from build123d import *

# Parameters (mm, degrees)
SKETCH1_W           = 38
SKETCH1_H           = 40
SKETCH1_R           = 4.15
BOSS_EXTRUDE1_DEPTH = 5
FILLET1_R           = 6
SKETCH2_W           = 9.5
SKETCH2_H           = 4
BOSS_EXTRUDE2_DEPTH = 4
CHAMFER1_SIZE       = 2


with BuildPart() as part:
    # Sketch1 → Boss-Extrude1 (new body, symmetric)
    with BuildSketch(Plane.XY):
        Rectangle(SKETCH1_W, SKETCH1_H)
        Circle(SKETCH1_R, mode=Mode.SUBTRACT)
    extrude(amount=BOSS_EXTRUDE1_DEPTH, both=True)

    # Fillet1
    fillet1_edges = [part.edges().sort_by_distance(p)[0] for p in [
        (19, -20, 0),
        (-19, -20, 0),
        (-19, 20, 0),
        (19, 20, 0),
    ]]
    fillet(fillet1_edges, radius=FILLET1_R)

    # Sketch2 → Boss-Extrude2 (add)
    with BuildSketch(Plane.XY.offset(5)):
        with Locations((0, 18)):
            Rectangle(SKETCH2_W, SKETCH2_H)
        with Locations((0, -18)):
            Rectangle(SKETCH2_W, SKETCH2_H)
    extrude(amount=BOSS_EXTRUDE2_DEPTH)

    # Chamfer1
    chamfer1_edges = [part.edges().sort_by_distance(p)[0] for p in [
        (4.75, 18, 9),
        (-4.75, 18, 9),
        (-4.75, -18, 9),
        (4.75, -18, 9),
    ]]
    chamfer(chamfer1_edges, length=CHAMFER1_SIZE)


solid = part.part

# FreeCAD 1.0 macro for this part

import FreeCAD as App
import Part
import Sketcher
Q = App.Units.Quantity


def edges_at(feature, points):
    """Names of the edges that pass closest to the given points."""
    edges = feature.Shape.Edges
    near = lambda p: min(range(len(edges)), key=lambda i: edges[i].distToShape(Part.Vertex(*p))[0])
    return sorted({f"Edge{near(p) + 1}" for p in points})

doc = App.newDocument("Part")
body = doc.addObject("PartDesign::Body", "Body")

sketch1 = body.newObject("Sketcher::SketchObject", "Sketch")
sketch1.AttachmentSupport = (doc.getObject("XY_Plane"), [""])
sketch1.MapMode = "FlatFace"
sketch1.addGeometry([
    Part.LineSegment(App.Vector(-19, 20, 0), App.Vector(-19, -20, 0)),
    Part.LineSegment(App.Vector(-19, -20, 0), App.Vector(19, -20, 0)),
    Part.LineSegment(App.Vector(19, -20, 0), App.Vector(19, 20, 0)),
    Part.LineSegment(App.Vector(19, 20, 0), App.Vector(-19, 20, 0)),
    Part.Circle(App.Vector(0, 0, 0), App.Vector(0, 0, 1), 4.15),
], False)
sketch1.addConstraint([
    Sketcher.Constraint("Coincident", 0, 2, 1, 1),
    Sketcher.Constraint("Coincident", 1, 2, 2, 1),
    Sketcher.Constraint("Coincident", 2, 2, 3, 1),
    Sketcher.Constraint("Coincident", 3, 2, 0, 1),
    Sketcher.Constraint("Vertical", 0),
    Sketcher.Constraint("Horizontal", 1),
    Sketcher.Constraint("Vertical", 2),
    Sketcher.Constraint("Horizontal", 3),
    Sketcher.Constraint("Coincident", 4, 3, -1, 1),
    Sketcher.Constraint("Symmetric", 0, 2, 2, 2, -1, 1),
    Sketcher.Constraint("Diameter", 4, Q("8.3 mm")),
    Sketcher.Constraint("DistanceX", 1, 1, 1, 2, Q("38 mm")),
    Sketcher.Constraint("DistanceY", 0, 2, 0, 1, Q("40 mm")),
])
pad1 = body.newObject("PartDesign::Pad", "Pad")
pad1.Profile = sketch1
pad1.Length = 10
pad1.Midplane = True
doc.recompute()

fillet = body.newObject("PartDesign::Fillet", "Fillet")
fillet.Base = (pad1, edges_at(pad1, [
    (19, -20, 0),
    (-19, -20, 0),
    (-19, 20, 0),
    (19, 20, 0),
]))
fillet.Radius = 6

sketch2 = body.newObject("Sketcher::SketchObject", "Sketch001")
sketch2.AttachmentSupport = (doc.getObject("XY_Plane"), [""])
sketch2.MapMode = "FlatFace"
sketch2.AttachmentOffset = App.Placement(App.Vector(0, 0, 5), App.Rotation())
sketch2.addGeometry([
    Part.LineSegment(App.Vector(-4.75, 20, 0), App.Vector(-4.75, 16, 0)),
    Part.LineSegment(App.Vector(-4.75, 16, 0), App.Vector(4.75, 16, 0)),
    Part.LineSegment(App.Vector(4.75, 16, 0), App.Vector(4.75, 20, 0)),
    Part.LineSegment(App.Vector(4.75, 20, 0), App.Vector(-4.75, 20, 0)),
    Part.LineSegment(App.Vector(-4.75, -16, 0), App.Vector(-4.75, -20, 0)),
    Part.LineSegment(App.Vector(-4.75, -20, 0), App.Vector(4.75, -20, 0)),
    Part.LineSegment(App.Vector(4.75, -20, 0), App.Vector(4.75, -16, 0)),
    Part.LineSegment(App.Vector(4.75, -16, 0), App.Vector(-4.75, -16, 0)),
], False)
sketch2.addConstraint([
    Sketcher.Constraint("Coincident", 0, 2, 1, 1),
    Sketcher.Constraint("Coincident", 1, 2, 2, 1),
    Sketcher.Constraint("Coincident", 2, 2, 3, 1),
    Sketcher.Constraint("Coincident", 3, 2, 0, 1),
    Sketcher.Constraint("Coincident", 4, 2, 5, 1),
    Sketcher.Constraint("Coincident", 5, 2, 6, 1),
    Sketcher.Constraint("Coincident", 6, 2, 7, 1),
    Sketcher.Constraint("Coincident", 7, 2, 4, 1),
    Sketcher.Constraint("Vertical", 0),
    Sketcher.Constraint("Horizontal", 1),
    Sketcher.Constraint("Vertical", 2),
    Sketcher.Constraint("Horizontal", 3),
    Sketcher.Constraint("Vertical", 4),
    Sketcher.Constraint("Horizontal", 5),
    Sketcher.Constraint("Vertical", 6),
    Sketcher.Constraint("Horizontal", 7),
    Sketcher.Constraint("Symmetric", 2, 2, 4, 2, -1, 1),
    Sketcher.Constraint("Symmetric", 0, 2, 6, 2, -1, 1),
    Sketcher.Constraint("Vertical", 3, 2, 4, 2),
    Sketcher.Constraint("DistanceY", 0, 2, 0, 1, Q("4 mm")),
    Sketcher.Constraint("DistanceX", 1, 1, 1, 2, Q("9.5 mm")),
    Sketcher.Constraint("DistanceY", -1, 1, 0, 2, Q("16 mm")),
])
pad2 = body.newObject("PartDesign::Pad", "Pad001")
pad2.Profile = sketch2
pad2.Length = 4
doc.recompute()

chamfer = body.newObject("PartDesign::Chamfer", "Chamfer")
chamfer.Base = (pad2, edges_at(pad2, [
    (4.75, 18, 9),
    (-4.75, 18, 9),
    (-4.75, -18, 9),
    (4.75, -18, 9),
]))
chamfer.Size = 2

doc.recompute()
